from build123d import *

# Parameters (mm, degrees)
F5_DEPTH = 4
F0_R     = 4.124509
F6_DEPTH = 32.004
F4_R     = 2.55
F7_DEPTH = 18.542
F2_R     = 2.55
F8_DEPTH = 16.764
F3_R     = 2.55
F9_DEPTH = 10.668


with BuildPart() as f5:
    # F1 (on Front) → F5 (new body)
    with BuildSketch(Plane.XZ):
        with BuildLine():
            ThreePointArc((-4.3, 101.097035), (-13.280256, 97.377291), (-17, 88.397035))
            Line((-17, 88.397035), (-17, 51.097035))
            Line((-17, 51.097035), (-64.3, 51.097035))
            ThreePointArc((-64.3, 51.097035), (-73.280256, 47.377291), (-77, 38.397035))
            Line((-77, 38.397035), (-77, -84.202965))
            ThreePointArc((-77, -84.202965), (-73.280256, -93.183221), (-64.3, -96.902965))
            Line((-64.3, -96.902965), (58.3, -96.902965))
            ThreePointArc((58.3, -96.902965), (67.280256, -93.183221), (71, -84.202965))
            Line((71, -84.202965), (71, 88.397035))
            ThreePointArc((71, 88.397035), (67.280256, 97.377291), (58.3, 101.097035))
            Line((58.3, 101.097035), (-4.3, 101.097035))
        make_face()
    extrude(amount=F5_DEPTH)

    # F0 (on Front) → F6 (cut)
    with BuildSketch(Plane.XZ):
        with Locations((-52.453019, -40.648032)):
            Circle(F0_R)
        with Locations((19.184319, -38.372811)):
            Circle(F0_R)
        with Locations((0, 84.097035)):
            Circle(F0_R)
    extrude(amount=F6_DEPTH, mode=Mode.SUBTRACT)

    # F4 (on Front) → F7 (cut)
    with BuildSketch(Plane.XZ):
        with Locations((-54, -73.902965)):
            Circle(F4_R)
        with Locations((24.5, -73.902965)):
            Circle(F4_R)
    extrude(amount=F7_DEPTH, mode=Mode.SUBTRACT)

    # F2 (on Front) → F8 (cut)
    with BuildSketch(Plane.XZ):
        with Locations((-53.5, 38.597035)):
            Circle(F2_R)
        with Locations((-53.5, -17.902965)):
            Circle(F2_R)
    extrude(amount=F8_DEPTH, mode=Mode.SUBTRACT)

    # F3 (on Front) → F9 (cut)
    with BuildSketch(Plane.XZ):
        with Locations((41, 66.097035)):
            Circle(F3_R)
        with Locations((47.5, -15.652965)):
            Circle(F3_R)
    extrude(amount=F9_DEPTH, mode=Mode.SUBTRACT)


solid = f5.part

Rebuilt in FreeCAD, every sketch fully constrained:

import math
import FreeCAD as App
import Part
import Sketcher
from FreeCAD import Vector

doc = App.newDocument("Part")
body = doc.addObject("PartDesign::Body", "Body")

# Sketch on XZ plane
sketch1 = body.newObject("Sketcher::SketchObject", "Sketch")
sketch1.AttachmentSupport = (doc.getObject("XZ_Plane"), [""])
sketch1.MapMode = "FlatFace"
sketch1.addGeometry([
    Part.ArcOfCircle(Part.Circle(Vector(-4, 88, 0), Vector(0, 0, 1), 13), math.radians(90), math.radians(180)),  # 0
    Part.LineSegment(Vector(-17, 88, 0), Vector(-17, 51, 0)),  # 1
    Part.LineSegment(Vector(-17, 51, 0), Vector(-64, 51, 0)),  # 2
    Part.ArcOfCircle(Part.Circle(Vector(-64, 38, 0), Vector(0, 0, 1), 13), math.radians(90), math.radians(180)),  # 3
    Part.LineSegment(Vector(-77, 38, 0), Vector(-77, -84, 0)),  # 4
    Part.ArcOfCircle(Part.Circle(Vector(-64, -84, 0), Vector(0, 0, 1), 13), math.radians(-180), math.radians(-90)),  # 5
    Part.LineSegment(Vector(-64, -97, 0), Vector(58, -97, 0)),  # 6
    Part.ArcOfCircle(Part.Circle(Vector(58, -84, 0), Vector(0, 0, 1), 13), math.radians(-90), math.radians(0)),  # 7
    Part.LineSegment(Vector(71, -84, 0), Vector(71, 88, 0)),  # 8
    Part.ArcOfCircle(Part.Circle(Vector(58, 88, 0), Vector(0, 0, 1), 13), math.radians(0), math.radians(90)),  # 9
    Part.LineSegment(Vector(58, 101, 0), Vector(-4, 101, 0)),  # 10
], False)
sketch1.addConstraint([
    Sketcher.Constraint("Tangent", 0, 2, 1, 1),
    Sketcher.Constraint("Coincident", 1, 2, 2, 1),
    Sketcher.Constraint("Tangent", 2, 2, 3, 1),
    Sketcher.Constraint("Tangent", 3, 2, 4, 1),
    Sketcher.Constraint("Tangent", 4, 2, 5, 1),
    Sketcher.Constraint("Tangent", 5, 2, 6, 1),
    Sketcher.Constraint("Tangent", 6, 2, 7, 1),
    Sketcher.Constraint("Tangent", 7, 2, 8, 1),
    Sketcher.Constraint("Tangent", 8, 2, 9, 1),
    Sketcher.Constraint("Tangent", 9, 2, 10, 1),
    Sketcher.Constraint("Tangent", 10, 2, 0, 1),
    Sketcher.Constraint("Vertical", 1),
    Sketcher.Constraint("Horizontal", 2),
    Sketcher.Constraint("Vertical", 4),
    Sketcher.Constraint("Horizontal", 6),
    Sketcher.Constraint("Vertical", 8),
    Sketcher.Constraint("Horizontal", 10),
    Sketcher.Constraint("Equal", 0, 3),
    Sketcher.Constraint("Equal", 3, 5),
    Sketcher.Constraint("Equal", 5, 7),
    Sketcher.Constraint("Equal", 7, 9),
    Sketcher.Constraint("Equal", 6, 4),
    Sketcher.Constraint("Radius", 0, 12.7),
    Sketcher.Constraint("DistanceX", 2, 2, 2, 1, 47.3),
    Sketcher.Constraint("DistanceX", 6, 1, 6, 2, 122.6),
    Sketcher.Constraint("DistanceY", 1, 2, 1, 1, 37.3),
    Sketcher.Constraint("DistanceX", 0, 2, -1, 1, 17.0),
    Sketcher.Constraint("DistanceY", -1, 1, 0, 3, 88.397035),
])
pad1 = body.newObject("PartDesign::Pad", "Pad")
pad1.Profile = sketch1
pad1.Length = 4

# Sketch on XZ plane
sketch2 = body.newObject("Sketcher::SketchObject", "Sketch001")
sketch2.AttachmentSupport = (doc.getObject("XZ_Plane"), [""])
sketch2.MapMode = "FlatFace"
sketch2.addGeometry([
    Part.Circle(Vector(-52.5, -40.6, 0), Vector(0, 0, 1), 4.1),
    Part.Circle(Vector(19.2, -38.4, 0), Vector(0, 0, 1), 4.1),
    Part.Circle(Vector(0, 84.1, 0), Vector(0, 0, 1), 4.1),
], False)
sketch2.addConstraint([
    Sketcher.Constraint("Equal", 0, 1),
    Sketcher.Constraint("Equal", 1, 2),
    Sketcher.Constraint("PointOnObject", 2, 3, -2),
    Sketcher.Constraint("Diameter", 0, 8.249018),
    Sketcher.Constraint("DistanceX", 0, 3, -1, 1, 52.453019),
    Sketcher.Constraint("DistanceX", -1, 1, 1, 3, 19.184319),
    Sketcher.Constraint("DistanceY", 1, 3, -1, 1, 38.372811),
    Sketcher.Constraint("DistanceY", 0, 3, 1, 3, 2.275221),
    Sketcher.Constraint("DistanceY", -1, 1, 2, 3, 84.097035),
])
pocket1 = body.newObject("PartDesign::Pocket", "Pocket")
pocket1.Profile = sketch2
pocket1.Length = 32.004
pocket1.Reversed = True

# Sketch on XZ plane
sketch3 = body.newObject("Sketcher::SketchObject", "Sketch002")
sketch3.AttachmentSupport = (doc.getObject("XZ_Plane"), [""])
sketch3.MapMode = "FlatFace"
sketch3.addGeometry([
    Part.Circle(Vector(-54, -73.9, 0), Vector(0, 0, 1), 2.5),
    Part.Circle(Vector(24.5, -73.9, 0), Vector(0, 0, 1), 2.5),
], False)
sketch3.addConstraint([
    Sketcher.Constraint("Equal", 0, 1),
    Sketcher.Constraint("Horizontal", 0, 3, 1, 3),
    Sketcher.Constraint("Diameter", 0, 5.1),
    Sketcher.Constraint("DistanceX", 0, 3, -1, 1, 54.0),
    Sketcher.Constraint("DistanceX", -1, 1, 1, 3, 24.5),
    Sketcher.Constraint("DistanceY", 0, 3, -1, 1, 73.902965),
])
pocket2 = body.newObject("PartDesign::Pocket", "Pocket001")
pocket2.Profile = sketch3
pocket2.Length = 18.542
pocket2.Reversed = True

# Sketch on XZ plane
sketch4 = body.newObject("Sketcher::SketchObject", "Sketch003")
sketch4.AttachmentSupport = (doc.getObject("XZ_Plane"), [""])
sketch4.MapMode = "FlatFace"
sketch4.addGeometry([
    Part.Circle(Vector(-53.5, 38.6, 0), Vector(0, 0, 1), 2.5),
    Part.Circle(Vector(-53.5, -17.9, 0), Vector(0, 0, 1), 2.5),
], False)
sketch4.addConstraint([
    Sketcher.Constraint("Equal", 0, 1),
    Sketcher.Constraint("Vertical", 0, 3, 1, 3),
    Sketcher.Constraint("Diameter", 0, 5.1),
    Sketcher.Constraint("DistanceX", 0, 3, -1, 1, 53.5),
    Sketcher.Constraint("DistanceY", 1, 3, 0, 3, 56.5),
    Sketcher.Constraint("DistanceY", -1, 1, 0, 3, 38.597035),
])
pocket3 = body.newObject("PartDesign::Pocket", "Pocket002")
pocket3.Profile = sketch4
pocket3.Length = 16.764
pocket3.Reversed = True

# Sketch on XZ plane
sketch5 = body.newObject("Sketcher::SketchObject", "Sketch004")
sketch5.AttachmentSupport = (doc.getObject("XZ_Plane"), [""])
sketch5.MapMode = "FlatFace"
sketch5.addGeometry([
    Part.Circle(Vector(41, 66.1, 0), Vector(0, 0, 1), 2.5),
    Part.Circle(Vector(47.5, -15.7, 0), Vector(0, 0, 1), 2.5),
], False)
sketch5.addConstraint([
    Sketcher.Constraint("Equal", 0, 1),
    Sketcher.Constraint("Diameter", 0, 5.1),
    Sketcher.Constraint("DistanceX", -1, 1, 0, 3, 41.0),
    Sketcher.Constraint("DistanceX", -1, 1, 1, 3, 47.5),
    Sketcher.Constraint("DistanceY", 1, 3, 0, 3, 81.75),
    Sketcher.Constraint("DistanceY", -1, 1, 0, 3, 66.097035),
])
pocket4 = body.newObject("PartDesign::Pocket", "Pocket003")
pocket4.Profile = sketch5
pocket4.Length = 10.668
pocket4.Reversed = True

doc.recompute()
